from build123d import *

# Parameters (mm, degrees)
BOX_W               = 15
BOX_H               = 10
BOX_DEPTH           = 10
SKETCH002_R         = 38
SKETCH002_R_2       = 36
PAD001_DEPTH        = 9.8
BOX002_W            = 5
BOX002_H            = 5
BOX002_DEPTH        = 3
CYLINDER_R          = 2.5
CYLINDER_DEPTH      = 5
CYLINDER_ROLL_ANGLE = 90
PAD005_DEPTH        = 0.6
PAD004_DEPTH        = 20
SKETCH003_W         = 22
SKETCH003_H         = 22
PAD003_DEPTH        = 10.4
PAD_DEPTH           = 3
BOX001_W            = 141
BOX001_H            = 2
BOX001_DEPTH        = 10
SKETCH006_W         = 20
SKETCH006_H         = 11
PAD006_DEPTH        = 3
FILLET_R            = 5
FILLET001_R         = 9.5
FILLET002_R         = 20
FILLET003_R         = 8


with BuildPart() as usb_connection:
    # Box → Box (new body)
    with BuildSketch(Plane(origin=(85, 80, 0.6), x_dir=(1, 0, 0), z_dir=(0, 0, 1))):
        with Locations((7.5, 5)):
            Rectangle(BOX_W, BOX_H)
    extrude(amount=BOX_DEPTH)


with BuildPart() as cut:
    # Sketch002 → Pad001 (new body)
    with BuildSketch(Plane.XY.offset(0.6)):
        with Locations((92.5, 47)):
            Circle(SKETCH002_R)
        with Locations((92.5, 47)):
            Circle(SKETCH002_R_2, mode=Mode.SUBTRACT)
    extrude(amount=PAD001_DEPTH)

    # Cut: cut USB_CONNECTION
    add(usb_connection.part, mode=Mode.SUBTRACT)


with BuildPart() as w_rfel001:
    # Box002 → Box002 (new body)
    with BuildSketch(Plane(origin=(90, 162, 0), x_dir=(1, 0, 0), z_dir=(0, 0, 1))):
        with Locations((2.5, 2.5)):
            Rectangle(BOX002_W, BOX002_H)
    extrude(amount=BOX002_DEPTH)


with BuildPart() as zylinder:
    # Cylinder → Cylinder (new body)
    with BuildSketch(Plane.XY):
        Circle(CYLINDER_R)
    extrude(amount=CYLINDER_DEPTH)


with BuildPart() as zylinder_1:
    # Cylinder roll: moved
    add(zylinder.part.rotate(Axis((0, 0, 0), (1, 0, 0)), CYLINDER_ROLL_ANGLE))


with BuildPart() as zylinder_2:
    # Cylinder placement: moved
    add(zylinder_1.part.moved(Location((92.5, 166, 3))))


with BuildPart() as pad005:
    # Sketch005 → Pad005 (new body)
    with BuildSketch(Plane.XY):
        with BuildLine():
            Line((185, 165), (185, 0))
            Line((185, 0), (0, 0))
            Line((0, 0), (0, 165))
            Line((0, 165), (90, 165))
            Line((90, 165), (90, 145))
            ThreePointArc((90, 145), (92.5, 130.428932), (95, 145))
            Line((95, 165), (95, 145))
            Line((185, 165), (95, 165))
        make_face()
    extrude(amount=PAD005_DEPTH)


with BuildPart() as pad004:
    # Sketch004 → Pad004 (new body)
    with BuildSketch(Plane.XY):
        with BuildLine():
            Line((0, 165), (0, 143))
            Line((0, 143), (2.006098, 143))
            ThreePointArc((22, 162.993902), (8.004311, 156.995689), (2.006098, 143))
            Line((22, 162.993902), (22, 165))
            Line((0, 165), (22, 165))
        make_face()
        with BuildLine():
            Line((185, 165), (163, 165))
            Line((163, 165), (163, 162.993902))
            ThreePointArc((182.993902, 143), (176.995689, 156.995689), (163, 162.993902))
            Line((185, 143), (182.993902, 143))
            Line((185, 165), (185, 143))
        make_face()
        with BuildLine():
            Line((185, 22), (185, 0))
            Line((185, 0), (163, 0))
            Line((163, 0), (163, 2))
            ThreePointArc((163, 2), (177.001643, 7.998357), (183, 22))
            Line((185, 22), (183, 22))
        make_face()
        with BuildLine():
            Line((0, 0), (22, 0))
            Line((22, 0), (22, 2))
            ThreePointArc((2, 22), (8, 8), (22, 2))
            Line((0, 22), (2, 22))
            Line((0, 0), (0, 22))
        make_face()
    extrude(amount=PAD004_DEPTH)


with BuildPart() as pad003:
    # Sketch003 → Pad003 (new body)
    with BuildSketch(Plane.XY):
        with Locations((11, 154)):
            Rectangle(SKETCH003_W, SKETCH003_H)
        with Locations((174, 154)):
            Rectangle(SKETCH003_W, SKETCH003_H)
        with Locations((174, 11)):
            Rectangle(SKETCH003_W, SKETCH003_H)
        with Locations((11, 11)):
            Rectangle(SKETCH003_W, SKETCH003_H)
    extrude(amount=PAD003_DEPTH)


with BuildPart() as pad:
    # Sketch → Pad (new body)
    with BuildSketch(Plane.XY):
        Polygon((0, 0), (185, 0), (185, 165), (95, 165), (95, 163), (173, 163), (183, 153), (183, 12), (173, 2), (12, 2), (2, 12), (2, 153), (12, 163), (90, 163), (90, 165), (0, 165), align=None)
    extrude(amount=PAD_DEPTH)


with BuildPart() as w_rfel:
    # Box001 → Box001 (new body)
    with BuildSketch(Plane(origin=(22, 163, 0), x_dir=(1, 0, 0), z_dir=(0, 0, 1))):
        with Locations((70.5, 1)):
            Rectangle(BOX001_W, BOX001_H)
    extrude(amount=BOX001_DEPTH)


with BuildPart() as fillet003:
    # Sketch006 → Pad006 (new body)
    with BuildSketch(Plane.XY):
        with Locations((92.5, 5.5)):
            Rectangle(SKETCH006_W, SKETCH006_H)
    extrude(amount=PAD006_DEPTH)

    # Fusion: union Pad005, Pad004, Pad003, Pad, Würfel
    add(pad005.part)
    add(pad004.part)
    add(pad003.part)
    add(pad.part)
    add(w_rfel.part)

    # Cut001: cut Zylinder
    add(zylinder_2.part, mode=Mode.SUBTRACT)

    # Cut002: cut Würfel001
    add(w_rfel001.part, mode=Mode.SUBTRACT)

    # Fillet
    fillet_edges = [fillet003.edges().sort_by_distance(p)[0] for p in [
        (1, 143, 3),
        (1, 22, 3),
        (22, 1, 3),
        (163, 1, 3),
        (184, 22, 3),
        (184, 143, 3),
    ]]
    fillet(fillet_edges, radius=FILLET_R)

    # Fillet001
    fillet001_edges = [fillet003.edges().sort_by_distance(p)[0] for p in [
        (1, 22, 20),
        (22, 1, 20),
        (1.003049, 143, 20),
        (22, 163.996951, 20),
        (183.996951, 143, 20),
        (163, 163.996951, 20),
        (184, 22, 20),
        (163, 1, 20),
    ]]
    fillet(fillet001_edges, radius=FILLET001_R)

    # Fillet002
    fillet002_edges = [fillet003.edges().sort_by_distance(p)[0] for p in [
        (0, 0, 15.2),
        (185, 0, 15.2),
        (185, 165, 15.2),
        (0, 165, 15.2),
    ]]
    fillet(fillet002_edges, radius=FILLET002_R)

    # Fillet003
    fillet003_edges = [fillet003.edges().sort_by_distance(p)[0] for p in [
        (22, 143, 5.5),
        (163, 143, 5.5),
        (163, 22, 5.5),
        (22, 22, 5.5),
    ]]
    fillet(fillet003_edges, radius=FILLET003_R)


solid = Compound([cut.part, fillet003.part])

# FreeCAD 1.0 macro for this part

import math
import FreeCAD as App
import Part
import Sketcher
from FreeCAD import Vector
Q = App.Units.Quantity


def edges_at(feature, points):
    """Names of the edges that pass closest to the given points."""
    edges = feature.Shape.Edges
    near = lambda p: min(range(len(edges)), key=lambda i: edges[i].distToShape(Part.Vertex(*p))[0])
    return sorted({f"Edge{near(p) + 1}" for p in points})


def add_polygon(sketch, points):
    """Adds a closed chain of lines whose ends are joined by coincident constraints."""
    first, n = sketch.GeometryCount, len(points)
    for a, b in zip(points, points[1:] + points[:1]):
        sketch.addGeometry(Part.LineSegment(App.Vector(*a, 0), App.Vector(*b, 0)), False)
    for i in range(n):
        sketch.addConstraint(Sketcher.Constraint("Coincident", first + i, 2, first + (i + 1) % n, 1))

doc = App.newDocument("Part")
params = doc.addObject("Spreadsheet::Sheet", "Params")
for row, (alias, value) in enumerate([
    ("sketch1_width", "15 mm"),
    ("sketch1_height", "10 mm"),
    ("pad1_length", "10 mm"),
    ("sketch2_diameter", "76 mm"),
    ("sketch2_diameter2", "72 mm"),
    ("pad2_length", "9.8 mm"),
    ("sketch3_width", "5 mm"),
    ("pad3_length", "3 mm"),
    ("sketch4_diameter", "5 mm"),
    ("pad4_length", "5 mm"),
    ("sketch5_radius", "7.5 mm"),
    ("sketch5_width", "90 mm"),
    ("sketch5_width2", "185 mm"),
    ("sketch5_height", "165 mm"),
    ("sketch5_height2", "20 mm"),
    ("pad5_length", "0.6 mm"),
    ("sketch6_radius", "20.500002 mm"),
    ("sketch6_width", "22 mm"),
    ("sketch6_width2", "2 mm"),
    ("pad6_length", "20 mm"),
    ("sketch7_width", "22 mm"),
    ("pad7_length", "10.4 mm"),
    ("sketch8_width", "185 mm"),
    ("sketch8_width2", "90 mm"),
    ("sketch8_width3", "78 mm"),
    ("sketch8_height", "165 mm"),
    ("sketch8_height2", "2 mm"),
    ("pad8_length", "3 mm"),
    ("sketch9_width", "141 mm"),
    ("sketch9_height", "2 mm"),
    ("pad9_length", "10 mm"),
    ("sketch10_width", "20 mm"),
    ("sketch10_height", "11 mm"),
    ("pad10_length", "3 mm"),
    ("fillet_radius", "5 mm"),
    ("fillet2_radius", "9.5 mm"),
    ("fillet3_radius", "20 mm"),
    ("fillet4_radius", "8 mm"),
], start=1):
    params.set(f"A{row}", alias)
    params.set(f"B{row}", "=" + value)
    params.setAlias(f"B{row}", alias)

body = doc.addObject("PartDesign::Body", "Body")

# Sketch on XY plane
sketch1 = body.newObject("Sketcher::SketchObject", "Sketch")
sketch1.AttachmentSupport = (doc.getObject("XY_Plane"), [""])
sketch1.MapMode = "FlatFace"
sketch1.AttachmentOffset = App.Placement(Vector(0, 0, 0.6), App.Rotation())
add_polygon(sketch1, [(85, 90), (85, 80), (100, 80), (100, 90)])  # lines 0-3
sketch1.addConstraint([
    Sketcher.Constraint("Vertical", 0),
    Sketcher.Constraint("Horizontal", 1),
    Sketcher.Constraint("Vertical", 2),
    Sketcher.Constraint("Horizontal", 3),
    Sketcher.Constraint("DistanceX", 1, 1, 1, 2, Q("15 mm")),
    Sketcher.Constraint("DistanceY", 0, 2, 0, 1, Q("10 mm")),
    Sketcher.Constraint("DistanceX", -1, 1, 0, 2, Q("85 mm")),
    Sketcher.Constraint("DistanceY", -1, 1, 0, 2, Q("80 mm")),
])
sketch1.setExpression("Constraints[8]", "Params.sketch1_width")
sketch1.setExpression("Constraints[9]", "Params.sketch1_height")
pad1 = body.newObject("PartDesign::Pad", "Pad")
pad1.Profile = sketch1
pad1.setExpression("Length", "Params.pad1_length")
body2 = doc.addObject("PartDesign::Body", "Body001")

# Sketch on XY plane
sketch2 = body2.newObject("Sketcher::SketchObject", "Sketch001")
sketch2.AttachmentSupport = (doc.getObject("XY_Plane001"), [""])
sketch2.MapMode = "FlatFace"
sketch2.AttachmentOffset = App.Placement(Vector(0, 0, 0.6), App.Rotation())
sketch2.addGeometry([
    Part.Circle(Vector(92.5, 47, 0), Vector(0, 0, 1), 38),
    Part.Circle(Vector(92.5, 47, 0), Vector(0, 0, 1), 36),
], False)
sketch2.addConstraint([
    Sketcher.Constraint("Coincident", 1, 3, 0, 3),
    Sketcher.Constraint("Diameter", 0, Q("76 mm")),
    Sketcher.Constraint("Diameter", 1, Q("72 mm")),
    Sketcher.Constraint("DistanceY", -1, 1, 0, 3, Q("47 mm")),
    Sketcher.Constraint("DistanceX", -1, 1, 0, 3, Q("92.5 mm")),
])
sketch2.setExpression("Constraints[1]", "Params.sketch2_diameter")
sketch2.setExpression("Constraints[2]", "Params.sketch2_diameter2")
pad2 = body2.newObject("PartDesign::Pad", "Pad001")
pad2.Profile = sketch2
pad2.setExpression("Length", "Params.pad2_length")
doc.recompute()

boolean = body2.newObject("PartDesign::Boolean", "Boolean")
boolean.Type = "Cut"
boolean.addObjects([body])
body3 = doc.addObject("PartDesign::Body", "Body002")

# Sketch on XY plane
sketch3 = body3.newObject("Sketcher::SketchObject", "Sketch002")
sketch3.AttachmentSupport = (doc.getObject("XY_Plane002"), [""])
sketch3.MapMode = "FlatFace"
add_polygon(sketch3, [(90, 167), (90, 162), (95, 162), (95, 167)])  # lines 0-3
sketch3.addConstraint([
    Sketcher.Constraint("Vertical", 0),
    Sketcher.Constraint("Horizontal", 1),
    Sketcher.Constraint("Vertical", 2),
    Sketcher.Constraint("Horizontal", 3),
    Sketcher.Constraint("Equal", 3, 0),
    Sketcher.Constraint("DistanceX", 1, 1, 1, 2, Q("5 mm")),
    Sketcher.Constraint("DistanceX", -1, 1, 0, 2, Q("90 mm")),
    Sketcher.Constraint("DistanceY", -1, 1, 0, 2, Q("162 mm")),
])
sketch3.setExpression("Constraints[9]", "Params.sketch3_width")
pad3 = body3.newObject("PartDesign::Pad", "Pad002")
pad3.Profile = sketch3
pad3.setExpression("Length", "Params.pad3_length")
body4 = doc.addObject("PartDesign::Body", "Body003")

# Sketch on XY plane
sketch4 = body4.newObject("Sketcher::SketchObject", "Sketch003")
sketch4.AttachmentSupport = (doc.getObject("XY_Plane003"), [""])
sketch4.MapMode = "FlatFace"
sketch4.addGeometry(Part.Circle(Vector(0, 0, 0), Vector(0, 0, 1), 2.5), False)
sketch4.addConstraint([
    Sketcher.Constraint("Coincident", 0, 3, -1, 1),
    Sketcher.Constraint("Diameter", 0, Q("5 mm")),
])
sketch4.setExpression("Constraints[1]", "Params.sketch4_diameter")
pad4 = body4.newObject("PartDesign::Pad", "Pad003")
pad4.Profile = sketch4
pad4.setExpression("Length", "Params.pad4_length")
body5 = doc.addObject("PartDesign::Body", "Body004")
doc.recompute()

body4.Placement = App.Placement(Vector(0, 0, 0), App.Rotation(Vector(1, 0, 0), 90))
boolean2 = body5.newObject("PartDesign::Boolean", "Boolean001")
boolean2.Type = "Fuse"
boolean2.addObjects([body4])
body6 = doc.addObject("PartDesign::Body", "Body005")
doc.recompute()

body5.Placement = App.Placement(Vector(92.5, 166, 3), App.Rotation(Vector(0, 0, 1), 0))
boolean3 = body6.newObject("PartDesign::Boolean", "Boolean002")
boolean3.Type = "Fuse"
boolean3.addObjects([body5])
body7 = doc.addObject("PartDesign::Body", "Body006")

# Sketch on XY plane
sketch5 = body7.newObject("Sketcher::SketchObject", "Sketch004")
sketch5.AttachmentSupport = (doc.getObject("XY_Plane006"), [""])
sketch5.MapMode = "FlatFace"
sketch5.addGeometry([
    Part.LineSegment(Vector(185, 0, 0), Vector(185, 165, 0)),  # 0
    Part.LineSegment(Vector(185, 165, 0), Vector(95, 165, 0)),  # 1
    Part.LineSegment(Vector(95, 165, 0), Vector(95, 145, 0)),  # 2
    Part.ArcOfCircle(Part.Circle(Vector(92.5, 137.928932, 0), Vector(0, 0, 1), 7.5), math.radians(109.47122), math.radians(430.52878)),  # 3
    Part.LineSegment(Vector(90, 145, 0), Vector(90, 165, 0)),  # 4
    Part.LineSegment(Vector(90, 165, 0), Vector(0, 165, 0)),  # 5
    Part.LineSegment(Vector(0, 165, 0), Vector(0, 0, 0)),  # 6
    Part.LineSegment(Vector(0, 0, 0), Vector(185, 0, 0)),  # 7
], False)
sketch5.addConstraint([
    Sketcher.Constraint("Coincident", 0, 2, 1, 1),
    Sketcher.Constraint("Coincident", 1, 2, 2, 1),
    Sketcher.Constraint("Coincident", 2, 2, 3, 2),
    Sketcher.Constraint("Coincident", 3, 1, 4, 1),
    Sketcher.Constraint("Coincident", 4, 2, 5, 1),
    Sketcher.Constraint("Coincident", 5, 2, 6, 1),
    Sketcher.Constraint("Coincident", 6, 2, 7, 1),
    Sketcher.Constraint("Coincident", 7, 2, 0, 1),
    Sketcher.Constraint("Vertical", 0),
    Sketcher.Constraint("Horizontal", 1),
    Sketcher.Constraint("Vertical", 2),
    Sketcher.Constraint("Vertical", 4),
    Sketcher.Constraint("Horizontal", 5),
    Sketcher.Constraint("Vertical", 6),
    Sketcher.Constraint("Horizontal", 7),
    Sketcher.Constraint("Coincident", 6, 2, -1, 1),
    Sketcher.Constraint("Horizontal", 2, 2, 3, 1),
    Sketcher.Constraint("Horizontal", 1, 2, 4, 2),
    Sketcher.Constraint("Equal", 1, 5),
    Sketcher.Constraint("Radius", 3, Q("7.5 mm")),
    Sketcher.Constraint("DistanceX", 1, 2, 1, 1, Q("90 mm")),
    Sketcher.Constraint("DistanceX", 7, 1, 7, 2, Q("185 mm")),
    Sketcher.Constraint("DistanceY", 0, 1, 0, 2, Q("165 mm")),
    Sketcher.Constraint("DistanceY", 2, 2, 2, 1, Q("20 mm")),
])
sketch5.setExpression("Constraints[19]", "Params.sketch5_radius")
sketch5.setExpression("Constraints[20]", "Params.sketch5_width")
sketch5.setExpression("Constraints[21]", "Params.sketch5_width2")
sketch5.setExpression("Constraints[22]", "Params.sketch5_height")
sketch5.setExpression("Constraints[23]", "Params.sketch5_height2")
pad5 = body7.newObject("PartDesign::Pad", "Pad004")
pad5.Profile = sketch5
pad5.setExpression("Length", "Params.pad5_length")
body8 = doc.addObject("PartDesign::Body", "Body007")
body8.AllowCompound = True

# Sketch on XY plane
sketch6 = body8.newObject("Sketcher::SketchObject", "Sketch005")
sketch6.AttachmentSupport = (doc.getObject("XY_Plane007"), [""])
sketch6.MapMode = "FlatFace"
sketch6.addGeometry([
    Part.LineSegment(Vector(0, 165, 0), Vector(0, 143, 0)),  # 0
    Part.LineSegment(Vector(0, 143, 0), Vector(2.006098, 143, 0)),  # 1
    Part.ArcOfCircle(Part.Circle(Vector(22.500001, 142.499999, 0), Vector(0, 0, 1), 20.500002), math.radians(91.3976), math.radians(178.6024)),  # 2
    Part.LineSegment(Vector(22, 162.993902, 0), Vector(22, 165, 0)),  # 3
    Part.LineSegment(Vector(22, 165, 0), Vector(0, 165, 0)),  # 4
    Part.LineSegment(Vector(185, 165, 0), Vector(163, 165, 0)),  # 5
    Part.LineSegment(Vector(163, 165, 0), Vector(163, 162.993902, 0)),  # 6
    Part.ArcOfCircle(Part.Circle(Vector(162.499999, 142.499999, 0), Vector(0, 0, 1), 20.500002), math.radians(1.3976), math.radians(88.6024)),  # 7
    Part.LineSegment(Vector(182.993902, 143, 0), Vector(185, 143, 0)),  # 8
    Part.LineSegment(Vector(185, 143, 0), Vector(185, 165, 0)),  # 9
    Part.LineSegment(Vector(185, 0, 0), Vector(185, 22, 0)),  # 10
    Part.LineSegment(Vector(185, 22, 0), Vector(183, 22, 0)),  # 11
    Part.ArcOfCircle(Part.Circle(Vector(162.505954, 22.494046, 0), Vector(0, 0, 1), 20.5), math.radians(-88.619049), math.radians(-1.380951)),  # 12
    Part.LineSegment(Vector(163, 2, 0), Vector(163, 0, 0)),  # 13
    Part.LineSegment(Vector(163, 0, 0), Vector(185, 0, 0)),  # 14
    Part.LineSegment(Vector(0, 0, 0), Vector(22, 0, 0)),  # 15
    Part.LineSegment(Vector(22, 0, 0), Vector(22, 2, 0)),  # 16
    Part.ArcOfCircle(Part.Circle(Vector(22.5, 22.5, 0), Vector(0, 0, 1), 20.506097), math.radians(-178.602819), math.radians(-91.397181)),  # 17
    Part.LineSegment(Vector(2, 22, 0), Vector(0, 22, 0)),  # 18
    Part.LineSegment(Vector(0, 22, 0), Vector(0, 0, 0)),  # 19
], False)
sketch6.addConstraint([
    Sketcher.Constraint("Coincident", 0, 2, 1, 1),
    Sketcher.Constraint("Coincident", 1, 2, 2, 2),
    Sketcher.Constraint("Coincident", 2, 1, 3, 1),
    Sketcher.Constraint("Coincident", 3, 2, 4, 1),
    Sketcher.Constraint("Coincident", 4, 2, 0, 1),
    Sketcher.Constraint("Coincident", 5, 2, 6, 1),
    Sketcher.Constraint("Coincident", 6, 2, 7, 2),
    Sketcher.Constraint("Coincident", 7, 1, 8, 1),
    Sketcher.Constraint("Coincident", 8, 2, 9, 1),
    Sketcher.Constraint("Coincident", 9, 2, 5, 1),
    Sketcher.Constraint("Coincident", 10, 2, 11, 1),
    Sketcher.Constraint("Coincident", 11, 2, 12, 2),
    Sketcher.Constraint("Coincident", 12, 1, 13, 1),
    Sketcher.Constraint("Coincident", 13, 2, 14, 1),
    Sketcher.Constraint("Coincident", 14, 2, 10, 1),
    Sketcher.Constraint("Coincident", 15, 2, 16, 1),
    Sketcher.Constraint("Coincident", 16, 2, 17, 2),
    Sketcher.Constraint("Coincident", 17, 1, 18, 1),
    Sketcher.Constraint("Coincident", 18, 2, 19, 1),
    Sketcher.Constraint("Coincident", 19, 2, 15, 1),
    Sketcher.Constraint("Vertical", 0),
    Sketcher.Constraint("Horizontal", 1),
    Sketcher.Constraint("Vertical", 3),
    Sketcher.Constraint("Horizontal", 4),
    Sketcher.Constraint("Horizontal", 5),
    Sketcher.Constraint("Vertical", 6),
    Sketcher.Constraint("Horizontal", 8),
    Sketcher.Constraint("Vertical", 9),
    Sketcher.Constraint("Vertical", 10),
    Sketcher.Constraint("Horizontal", 11),
    Sketcher.Constraint("Vertical", 13),
    Sketcher.Constraint("Horizontal", 14),
    Sketcher.Constraint("Horizontal", 15),
    Sketcher.Constraint("Vertical", 16),
    Sketcher.Constraint("Horizontal", 18),
    Sketcher.Constraint("Vertical", 19),
    Sketcher.Constraint("Coincident", 19, 2, -1, 1),
    Sketcher.Constraint("Equal", 2, 7),
    Sketcher.Constraint("Equal", 7, 12),
    Sketcher.Constraint("PointOnObject", 0, 2, -2),
    Sketcher.Constraint("PointOnObject", 13, 2, -1),
    Sketcher.Constraint("Horizontal", 2, 3, 7, 3),
    Sketcher.Constraint("Horizontal", 4, 2, 5, 2),
    Sketcher.Constraint("Horizontal", 2, 1, 6, 2),
    Sketcher.Constraint("Horizontal", 1, 2, 7, 1),
    Sketcher.Constraint("Horizontal", 12, 1, 16, 2),
    Sketcher.Constraint("Horizontal", 11, 2, 17, 1),
    Sketcher.Constraint("Vertical", 2, 3, 17, 3),
    Sketcher.Constraint("Vertical", 9, 2, 10, 2),
    Sketcher.Constraint("Vertical", 6, 2, 12, 1),
    Sketcher.Constraint("Vertical", 3, 2, 15, 2),
    Sketcher.Constraint("Equal", 4, 5),
    Sketcher.Constraint("Equal", 11, 18),
    Sketcher.Constraint("Equal", 15, 0),
    Sketcher.Constraint("Equal", 8, 3),
    Sketcher.Constraint("Equal", 9, 10),
    Sketcher.Constraint("Equal", 18, 13),
    Sketcher.Constraint("Radius", 2, Q("20.500002 mm")),
    Sketcher.Constraint("DistanceX", 4, 2, 4, 1, Q("22 mm")),
    Sketcher.Constraint("DistanceX", 11, 2, 11, 1, Q("2 mm")),
    Sketcher.Constraint("DistanceY", -1, 1, 0, 2, Q("143 mm")),
    Sketcher.Constraint("DistanceX", -1, 1, 5, 2, Q("163 mm")),
    Sketcher.Constraint("DistanceY", 17, 3, 2, 3, Q("119.999999 mm")),
])
sketch6.setExpression("Constraints[57]", "Params.sketch6_radius")
sketch6.setExpression("Constraints[58]", "Params.sketch6_width")
sketch6.setExpression("Constraints[59]", "Params.sketch6_width2")
pad6 = body8.newObject("PartDesign::Pad", "Pad005")
pad6.Profile = sketch6
pad6.setExpression("Length", "Params.pad6_length")
body9 = doc.addObject("PartDesign::Body", "Body008")
body9.AllowCompound = True

# Sketch on XY plane
sketch7 = body9.newObject("Sketcher::SketchObject", "Sketch006")
sketch7.AttachmentSupport = (doc.getObject("XY_Plane008"), [""])
sketch7.MapMode = "FlatFace"
add_polygon(sketch7, [(0, 165), (0, 143), (22, 143), (22, 165)])  # lines 0-3
add_polygon(sketch7, [(163, 165), (163, 143), (185, 143), (185, 165)])  # lines 4-7
add_polygon(sketch7, [(163, 22), (163, 0), (185, 0), (185, 22)])  # lines 8-11
add_polygon(sketch7, [(0, 22), (0, 0), (22, 0), (22, 22)])  # lines 12-15
sketch7.addConstraint([
    Sketcher.Constraint("Vertical", 0),
    Sketcher.Constraint("Horizontal", 1),
    Sketcher.Constraint("Vertical", 2),
    Sketcher.Constraint("Horizontal", 3),
    Sketcher.Constraint("Vertical", 4),
    Sketcher.Constraint("Horizontal", 5),
    Sketcher.Constraint("Vertical", 6),
    Sketcher.Constraint("Horizontal", 7),
    Sketcher.Constraint("Vertical", 8),
    Sketcher.Constraint("Horizontal", 9),
    Sketcher.Constraint("Vertical", 10),
    Sketcher.Constraint("Horizontal", 11),
    Sketcher.Constraint("Vertical", 12),
    Sketcher.Constraint("Horizontal", 13),
    Sketcher.Constraint("Vertical", 14),
    Sketcher.Constraint("Horizontal", 15),
    Sketcher.Constraint("Coincident", 12, 2, -1, 1),
    Sketcher.Constraint("PointOnObject", 0, 2, -2),
    Sketcher.Constraint("PointOnObject", 8, 2, -1),
    Sketcher.Constraint("Horizontal", 1, 2, 4, 2),
    Sketcher.Constraint("Horizontal", 3, 2, 6, 2),
    Sketcher.Constraint("Horizontal", 11, 2, 14, 2),
    Sketcher.Constraint("Vertical", 7, 2, 8, 2),
    Sketcher.Constraint("Vertical", 6, 2, 9, 2),
    Sketcher.Constraint("Vertical", 2, 2, 13, 2),
    Sketcher.Constraint("Equal", 3, 5),
    Sketcher.Constraint("Equal", 15, 0),
    Sketcher.Constraint("Equal", 6, 8),
    Sketcher.Constraint("DistanceX", 1, 1, 1, 2, Q("22 mm")),
    Sketcher.Constraint("DistanceY", -1, 1, 0, 2, Q("143 mm")),
    Sketcher.Constraint("DistanceX", -1, 1, 4, 2, Q("163 mm")),
])
sketch7.setExpression("Constraints[44]", "Params.sketch7_width")
pad7 = body9.newObject("PartDesign::Pad", "Pad006")
pad7.Profile = sketch7
pad7.setExpression("Length", "Params.pad7_length")
body10 = doc.addObject("PartDesign::Body", "Body009")

# Sketch on XY plane
sketch8 = body10.newObject("Sketcher::SketchObject", "Sketch007")
sketch8.AttachmentSupport = (doc.getObject("XY_Plane009"), [""])
sketch8.MapMode = "FlatFace"
add_polygon(sketch8, [(0, 0), (185, 0), (185, 165), (95, 165), (95, 163), (173, 163), (183, 153), (183, 12), (173, 2), (12, 2), (2, 12), (2, 153), (12, 163), (90, 163), (90, 165), (0, 165)])  # lines 0-15
sketch8.addConstraint([
    Sketcher.Constraint("Horizontal", 0),
    Sketcher.Constraint("Vertical", 1),
    Sketcher.Constraint("Horizontal", 2),
    Sketcher.Constraint("Vertical", 3),
    Sketcher.Constraint("Horizontal", 4),
    Sketcher.Constraint("Vertical", 6),
    Sketcher.Constraint("Horizontal", 8),
    Sketcher.Constraint("Vertical", 10),
    Sketcher.Constraint("Horizontal", 12),
    Sketcher.Constraint("Vertical", 13),
    Sketcher.Constraint("Horizontal", 14),
    Sketcher.Constraint("Vertical", 15),
    Sketcher.Constraint("Coincident", 15, 2, -1, 1),
    Sketcher.Constraint("Perpendicular", 5, 7),
    Sketcher.Constraint("Perpendicular", 7, 9),
    Sketcher.Constraint("Perpendicular", 9, 11),
    Sketcher.Constraint("Horizontal", 6, 2, 9, 2),
    Sketcher.Constraint("Horizontal", 5, 2, 10, 2),
    Sketcher.Constraint("Horizontal", 4, 2, 11, 2),
    Sketcher.Constraint("Horizontal", 2, 2, 13, 2),
    Sketcher.Constraint("Vertical", 4, 2, 7, 2),
    Sketcher.Constraint("Vertical", 8, 2, 11, 2),
    Sketcher.Constraint("Equal", 4, 12),
    Sketcher.Constraint("Equal", 2, 14),
    Sketcher.Constraint("DistanceX", 0, 1, 0, 2, Q("185 mm")),
    Sketcher.Constraint("DistanceX", 2, 2, 2, 1, Q("90 mm")),
    Sketcher.Constraint("DistanceX", 4, 1, 4, 2, Q("78 mm")),
    Sketcher.Constraint("DistanceY", 1, 1, 1, 2, Q("165 mm")),
    Sketcher.Constraint("DistanceY", 3, 2, 3, 1, Q("2 mm")),
    Sketcher.Constraint("DistanceY", 6, 2, 6, 1, Q("141 mm")),
    Sketcher.Constraint("DistanceX", -1, 1, 5, 2, Q("183 mm")),
])
sketch8.setExpression("Constraints[40]", "Params.sketch8_width")
sketch8.setExpression("Constraints[41]", "Params.sketch8_width2")
sketch8.setExpression("Constraints[42]", "Params.sketch8_width3")
sketch8.setExpression("Constraints[43]", "Params.sketch8_height")
sketch8.setExpression("Constraints[44]", "Params.sketch8_height2")
pad8 = body10.newObject("PartDesign::Pad", "Pad007")
pad8.Profile = sketch8
pad8.setExpression("Length", "Params.pad8_length")
body11 = doc.addObject("PartDesign::Body", "Body010")

# Sketch on XY plane
sketch9 = body11.newObject("Sketcher::SketchObject", "Sketch008")
sketch9.AttachmentSupport = (doc.getObject("XY_Plane010"), [""])
sketch9.MapMode = "FlatFace"
add_polygon(sketch9, [(22, 165), (22, 163), (163, 163), (163, 165)])  # lines 0-3
sketch9.addConstraint([
    Sketcher.Constraint("Vertical", 0),
    Sketcher.Constraint("Horizontal", 1),
    Sketcher.Constraint("Vertical", 2),
    Sketcher.Constraint("Horizontal", 3),
    Sketcher.Constraint("DistanceX", 1, 1, 1, 2, Q("141 mm")),
    Sketcher.Constraint("DistanceY", 0, 2, 0, 1, Q("2 mm")),
    Sketcher.Constraint("DistanceX", -1, 1, 0, 2, Q("22 mm")),
    Sketcher.Constraint("DistanceY", -1, 1, 0, 2, Q("163 mm")),
])
sketch9.setExpression("Constraints[8]", "Params.sketch9_width")
sketch9.setExpression("Constraints[9]", "Params.sketch9_height")
pad9 = body11.newObject("PartDesign::Pad", "Pad008")
pad9.Profile = sketch9
pad9.setExpression("Length", "Params.pad9_length")
body12 = doc.addObject("PartDesign::Body", "Body011")

# Sketch on XY plane
sketch10 = body12.newObject("Sketcher::SketchObject", "Sketch009")
sketch10.AttachmentSupport = (doc.getObject("XY_Plane011"), [""])
sketch10.MapMode = "FlatFace"
add_polygon(sketch10, [(82.5, 11), (82.5, 0), (102.5, 0), (102.5, 11)])  # lines 0-3
sketch10.addConstraint([
    Sketcher.Constraint("Vertical", 0),
    Sketcher.Constraint("Horizontal", 1),
    Sketcher.Constraint("Vertical", 2),
    Sketcher.Constraint("Horizontal", 3),
    Sketcher.Constraint("PointOnObject", 0, 2, -1),
    Sketcher.Constraint("DistanceX", 1, 1, 1, 2, Q("20 mm")),
    Sketcher.Constraint("DistanceY", 0, 2, 0, 1, Q("11 mm")),
    Sketcher.Constraint("DistanceX", -1, 1, 0, 2, Q("82.5 mm")),
])
sketch10.setExpression("Constraints[9]", "Params.sketch10_width")
sketch10.setExpression("Constraints[10]", "Params.sketch10_height")
pad10 = body12.newObject("PartDesign::Pad", "Pad009")
pad10.Profile = sketch10
pad10.setExpression("Length", "Params.pad10_length")
doc.recompute()

boolean4 = body12.newObject("PartDesign::Boolean", "Boolean003")
boolean4.Type = "Fuse"
boolean4.addObjects([body7])
doc.recompute()

boolean5 = body12.newObject("PartDesign::Boolean", "Boolean004")
boolean5.Type = "Fuse"
boolean5.addObjects([body8])
doc.recompute()

boolean6 = body12.newObject("PartDesign::Boolean", "Boolean005")
boolean6.Type = "Fuse"
boolean6.addObjects([body9])
doc.recompute()

boolean7 = body12.newObject("PartDesign::Boolean", "Boolean006")
boolean7.Type = "Fuse"
boolean7.addObjects([body10])
doc.recompute()

boolean8 = body12.newObject("PartDesign::Boolean", "Boolean007")
boolean8.Type = "Fuse"
boolean8.addObjects([body11])
doc.recompute()

boolean9 = body12.newObject("PartDesign::Boolean", "Boolean008")
boolean9.Type = "Cut"
boolean9.addObjects([body6])
doc.recompute()

boolean10 = body12.newObject("PartDesign::Boolean", "Boolean009")
boolean10.Type = "Cut"
boolean10.addObjects([body3])
doc.recompute()

fillet = body12.newObject("PartDesign::Fillet", "Fillet")
fillet.Base = (boolean10, edges_at(boolean10, [
    (1, 143, 3),
    (1, 22, 3),
    (22, 1, 3),
    (163, 1, 3),
    (184, 22, 3),
    (184, 143, 3),
]))
fillet.setExpression("Radius", "Params.fillet_radius")
doc.recompute()

fillet2 = body12.newObject("PartDesign::Fillet", "Fillet001")
fillet2.Base = (fillet, edges_at(fillet, [
    (1, 22, 20),
    (22, 1, 20),
    (1.003, 143, 20),
    (22, 163.997, 20),
    (183.997, 143, 20),
    (163, 163.997, 20),
    (184, 22, 20),
    (163, 1, 20),
]))
fillet2.setExpression("Radius", "Params.fillet2_radius")
doc.recompute()

fillet3 = body12.newObject("PartDesign::Fillet", "Fillet002")
fillet3.Base = (fillet2, edges_at(fillet2, [
    (0, 0, 10),
    (185, 0, 10),
    (185, 165, 10),
    (0, 165, 10),
]))
fillet3.setExpression("Radius", "Params.fillet3_radius")
doc.recompute()

fillet4 = body12.newObject("PartDesign::Fillet", "Fillet003")
fillet4.Base = (fillet3, edges_at(fillet3, [
    (22, 143, 5.5),
    (163, 143, 5.5),
    (163, 22, 5.5),
    (22, 22, 5.5),
]))
fillet4.setExpression("Radius", "Params.fillet4_radius")

doc.recompute()
